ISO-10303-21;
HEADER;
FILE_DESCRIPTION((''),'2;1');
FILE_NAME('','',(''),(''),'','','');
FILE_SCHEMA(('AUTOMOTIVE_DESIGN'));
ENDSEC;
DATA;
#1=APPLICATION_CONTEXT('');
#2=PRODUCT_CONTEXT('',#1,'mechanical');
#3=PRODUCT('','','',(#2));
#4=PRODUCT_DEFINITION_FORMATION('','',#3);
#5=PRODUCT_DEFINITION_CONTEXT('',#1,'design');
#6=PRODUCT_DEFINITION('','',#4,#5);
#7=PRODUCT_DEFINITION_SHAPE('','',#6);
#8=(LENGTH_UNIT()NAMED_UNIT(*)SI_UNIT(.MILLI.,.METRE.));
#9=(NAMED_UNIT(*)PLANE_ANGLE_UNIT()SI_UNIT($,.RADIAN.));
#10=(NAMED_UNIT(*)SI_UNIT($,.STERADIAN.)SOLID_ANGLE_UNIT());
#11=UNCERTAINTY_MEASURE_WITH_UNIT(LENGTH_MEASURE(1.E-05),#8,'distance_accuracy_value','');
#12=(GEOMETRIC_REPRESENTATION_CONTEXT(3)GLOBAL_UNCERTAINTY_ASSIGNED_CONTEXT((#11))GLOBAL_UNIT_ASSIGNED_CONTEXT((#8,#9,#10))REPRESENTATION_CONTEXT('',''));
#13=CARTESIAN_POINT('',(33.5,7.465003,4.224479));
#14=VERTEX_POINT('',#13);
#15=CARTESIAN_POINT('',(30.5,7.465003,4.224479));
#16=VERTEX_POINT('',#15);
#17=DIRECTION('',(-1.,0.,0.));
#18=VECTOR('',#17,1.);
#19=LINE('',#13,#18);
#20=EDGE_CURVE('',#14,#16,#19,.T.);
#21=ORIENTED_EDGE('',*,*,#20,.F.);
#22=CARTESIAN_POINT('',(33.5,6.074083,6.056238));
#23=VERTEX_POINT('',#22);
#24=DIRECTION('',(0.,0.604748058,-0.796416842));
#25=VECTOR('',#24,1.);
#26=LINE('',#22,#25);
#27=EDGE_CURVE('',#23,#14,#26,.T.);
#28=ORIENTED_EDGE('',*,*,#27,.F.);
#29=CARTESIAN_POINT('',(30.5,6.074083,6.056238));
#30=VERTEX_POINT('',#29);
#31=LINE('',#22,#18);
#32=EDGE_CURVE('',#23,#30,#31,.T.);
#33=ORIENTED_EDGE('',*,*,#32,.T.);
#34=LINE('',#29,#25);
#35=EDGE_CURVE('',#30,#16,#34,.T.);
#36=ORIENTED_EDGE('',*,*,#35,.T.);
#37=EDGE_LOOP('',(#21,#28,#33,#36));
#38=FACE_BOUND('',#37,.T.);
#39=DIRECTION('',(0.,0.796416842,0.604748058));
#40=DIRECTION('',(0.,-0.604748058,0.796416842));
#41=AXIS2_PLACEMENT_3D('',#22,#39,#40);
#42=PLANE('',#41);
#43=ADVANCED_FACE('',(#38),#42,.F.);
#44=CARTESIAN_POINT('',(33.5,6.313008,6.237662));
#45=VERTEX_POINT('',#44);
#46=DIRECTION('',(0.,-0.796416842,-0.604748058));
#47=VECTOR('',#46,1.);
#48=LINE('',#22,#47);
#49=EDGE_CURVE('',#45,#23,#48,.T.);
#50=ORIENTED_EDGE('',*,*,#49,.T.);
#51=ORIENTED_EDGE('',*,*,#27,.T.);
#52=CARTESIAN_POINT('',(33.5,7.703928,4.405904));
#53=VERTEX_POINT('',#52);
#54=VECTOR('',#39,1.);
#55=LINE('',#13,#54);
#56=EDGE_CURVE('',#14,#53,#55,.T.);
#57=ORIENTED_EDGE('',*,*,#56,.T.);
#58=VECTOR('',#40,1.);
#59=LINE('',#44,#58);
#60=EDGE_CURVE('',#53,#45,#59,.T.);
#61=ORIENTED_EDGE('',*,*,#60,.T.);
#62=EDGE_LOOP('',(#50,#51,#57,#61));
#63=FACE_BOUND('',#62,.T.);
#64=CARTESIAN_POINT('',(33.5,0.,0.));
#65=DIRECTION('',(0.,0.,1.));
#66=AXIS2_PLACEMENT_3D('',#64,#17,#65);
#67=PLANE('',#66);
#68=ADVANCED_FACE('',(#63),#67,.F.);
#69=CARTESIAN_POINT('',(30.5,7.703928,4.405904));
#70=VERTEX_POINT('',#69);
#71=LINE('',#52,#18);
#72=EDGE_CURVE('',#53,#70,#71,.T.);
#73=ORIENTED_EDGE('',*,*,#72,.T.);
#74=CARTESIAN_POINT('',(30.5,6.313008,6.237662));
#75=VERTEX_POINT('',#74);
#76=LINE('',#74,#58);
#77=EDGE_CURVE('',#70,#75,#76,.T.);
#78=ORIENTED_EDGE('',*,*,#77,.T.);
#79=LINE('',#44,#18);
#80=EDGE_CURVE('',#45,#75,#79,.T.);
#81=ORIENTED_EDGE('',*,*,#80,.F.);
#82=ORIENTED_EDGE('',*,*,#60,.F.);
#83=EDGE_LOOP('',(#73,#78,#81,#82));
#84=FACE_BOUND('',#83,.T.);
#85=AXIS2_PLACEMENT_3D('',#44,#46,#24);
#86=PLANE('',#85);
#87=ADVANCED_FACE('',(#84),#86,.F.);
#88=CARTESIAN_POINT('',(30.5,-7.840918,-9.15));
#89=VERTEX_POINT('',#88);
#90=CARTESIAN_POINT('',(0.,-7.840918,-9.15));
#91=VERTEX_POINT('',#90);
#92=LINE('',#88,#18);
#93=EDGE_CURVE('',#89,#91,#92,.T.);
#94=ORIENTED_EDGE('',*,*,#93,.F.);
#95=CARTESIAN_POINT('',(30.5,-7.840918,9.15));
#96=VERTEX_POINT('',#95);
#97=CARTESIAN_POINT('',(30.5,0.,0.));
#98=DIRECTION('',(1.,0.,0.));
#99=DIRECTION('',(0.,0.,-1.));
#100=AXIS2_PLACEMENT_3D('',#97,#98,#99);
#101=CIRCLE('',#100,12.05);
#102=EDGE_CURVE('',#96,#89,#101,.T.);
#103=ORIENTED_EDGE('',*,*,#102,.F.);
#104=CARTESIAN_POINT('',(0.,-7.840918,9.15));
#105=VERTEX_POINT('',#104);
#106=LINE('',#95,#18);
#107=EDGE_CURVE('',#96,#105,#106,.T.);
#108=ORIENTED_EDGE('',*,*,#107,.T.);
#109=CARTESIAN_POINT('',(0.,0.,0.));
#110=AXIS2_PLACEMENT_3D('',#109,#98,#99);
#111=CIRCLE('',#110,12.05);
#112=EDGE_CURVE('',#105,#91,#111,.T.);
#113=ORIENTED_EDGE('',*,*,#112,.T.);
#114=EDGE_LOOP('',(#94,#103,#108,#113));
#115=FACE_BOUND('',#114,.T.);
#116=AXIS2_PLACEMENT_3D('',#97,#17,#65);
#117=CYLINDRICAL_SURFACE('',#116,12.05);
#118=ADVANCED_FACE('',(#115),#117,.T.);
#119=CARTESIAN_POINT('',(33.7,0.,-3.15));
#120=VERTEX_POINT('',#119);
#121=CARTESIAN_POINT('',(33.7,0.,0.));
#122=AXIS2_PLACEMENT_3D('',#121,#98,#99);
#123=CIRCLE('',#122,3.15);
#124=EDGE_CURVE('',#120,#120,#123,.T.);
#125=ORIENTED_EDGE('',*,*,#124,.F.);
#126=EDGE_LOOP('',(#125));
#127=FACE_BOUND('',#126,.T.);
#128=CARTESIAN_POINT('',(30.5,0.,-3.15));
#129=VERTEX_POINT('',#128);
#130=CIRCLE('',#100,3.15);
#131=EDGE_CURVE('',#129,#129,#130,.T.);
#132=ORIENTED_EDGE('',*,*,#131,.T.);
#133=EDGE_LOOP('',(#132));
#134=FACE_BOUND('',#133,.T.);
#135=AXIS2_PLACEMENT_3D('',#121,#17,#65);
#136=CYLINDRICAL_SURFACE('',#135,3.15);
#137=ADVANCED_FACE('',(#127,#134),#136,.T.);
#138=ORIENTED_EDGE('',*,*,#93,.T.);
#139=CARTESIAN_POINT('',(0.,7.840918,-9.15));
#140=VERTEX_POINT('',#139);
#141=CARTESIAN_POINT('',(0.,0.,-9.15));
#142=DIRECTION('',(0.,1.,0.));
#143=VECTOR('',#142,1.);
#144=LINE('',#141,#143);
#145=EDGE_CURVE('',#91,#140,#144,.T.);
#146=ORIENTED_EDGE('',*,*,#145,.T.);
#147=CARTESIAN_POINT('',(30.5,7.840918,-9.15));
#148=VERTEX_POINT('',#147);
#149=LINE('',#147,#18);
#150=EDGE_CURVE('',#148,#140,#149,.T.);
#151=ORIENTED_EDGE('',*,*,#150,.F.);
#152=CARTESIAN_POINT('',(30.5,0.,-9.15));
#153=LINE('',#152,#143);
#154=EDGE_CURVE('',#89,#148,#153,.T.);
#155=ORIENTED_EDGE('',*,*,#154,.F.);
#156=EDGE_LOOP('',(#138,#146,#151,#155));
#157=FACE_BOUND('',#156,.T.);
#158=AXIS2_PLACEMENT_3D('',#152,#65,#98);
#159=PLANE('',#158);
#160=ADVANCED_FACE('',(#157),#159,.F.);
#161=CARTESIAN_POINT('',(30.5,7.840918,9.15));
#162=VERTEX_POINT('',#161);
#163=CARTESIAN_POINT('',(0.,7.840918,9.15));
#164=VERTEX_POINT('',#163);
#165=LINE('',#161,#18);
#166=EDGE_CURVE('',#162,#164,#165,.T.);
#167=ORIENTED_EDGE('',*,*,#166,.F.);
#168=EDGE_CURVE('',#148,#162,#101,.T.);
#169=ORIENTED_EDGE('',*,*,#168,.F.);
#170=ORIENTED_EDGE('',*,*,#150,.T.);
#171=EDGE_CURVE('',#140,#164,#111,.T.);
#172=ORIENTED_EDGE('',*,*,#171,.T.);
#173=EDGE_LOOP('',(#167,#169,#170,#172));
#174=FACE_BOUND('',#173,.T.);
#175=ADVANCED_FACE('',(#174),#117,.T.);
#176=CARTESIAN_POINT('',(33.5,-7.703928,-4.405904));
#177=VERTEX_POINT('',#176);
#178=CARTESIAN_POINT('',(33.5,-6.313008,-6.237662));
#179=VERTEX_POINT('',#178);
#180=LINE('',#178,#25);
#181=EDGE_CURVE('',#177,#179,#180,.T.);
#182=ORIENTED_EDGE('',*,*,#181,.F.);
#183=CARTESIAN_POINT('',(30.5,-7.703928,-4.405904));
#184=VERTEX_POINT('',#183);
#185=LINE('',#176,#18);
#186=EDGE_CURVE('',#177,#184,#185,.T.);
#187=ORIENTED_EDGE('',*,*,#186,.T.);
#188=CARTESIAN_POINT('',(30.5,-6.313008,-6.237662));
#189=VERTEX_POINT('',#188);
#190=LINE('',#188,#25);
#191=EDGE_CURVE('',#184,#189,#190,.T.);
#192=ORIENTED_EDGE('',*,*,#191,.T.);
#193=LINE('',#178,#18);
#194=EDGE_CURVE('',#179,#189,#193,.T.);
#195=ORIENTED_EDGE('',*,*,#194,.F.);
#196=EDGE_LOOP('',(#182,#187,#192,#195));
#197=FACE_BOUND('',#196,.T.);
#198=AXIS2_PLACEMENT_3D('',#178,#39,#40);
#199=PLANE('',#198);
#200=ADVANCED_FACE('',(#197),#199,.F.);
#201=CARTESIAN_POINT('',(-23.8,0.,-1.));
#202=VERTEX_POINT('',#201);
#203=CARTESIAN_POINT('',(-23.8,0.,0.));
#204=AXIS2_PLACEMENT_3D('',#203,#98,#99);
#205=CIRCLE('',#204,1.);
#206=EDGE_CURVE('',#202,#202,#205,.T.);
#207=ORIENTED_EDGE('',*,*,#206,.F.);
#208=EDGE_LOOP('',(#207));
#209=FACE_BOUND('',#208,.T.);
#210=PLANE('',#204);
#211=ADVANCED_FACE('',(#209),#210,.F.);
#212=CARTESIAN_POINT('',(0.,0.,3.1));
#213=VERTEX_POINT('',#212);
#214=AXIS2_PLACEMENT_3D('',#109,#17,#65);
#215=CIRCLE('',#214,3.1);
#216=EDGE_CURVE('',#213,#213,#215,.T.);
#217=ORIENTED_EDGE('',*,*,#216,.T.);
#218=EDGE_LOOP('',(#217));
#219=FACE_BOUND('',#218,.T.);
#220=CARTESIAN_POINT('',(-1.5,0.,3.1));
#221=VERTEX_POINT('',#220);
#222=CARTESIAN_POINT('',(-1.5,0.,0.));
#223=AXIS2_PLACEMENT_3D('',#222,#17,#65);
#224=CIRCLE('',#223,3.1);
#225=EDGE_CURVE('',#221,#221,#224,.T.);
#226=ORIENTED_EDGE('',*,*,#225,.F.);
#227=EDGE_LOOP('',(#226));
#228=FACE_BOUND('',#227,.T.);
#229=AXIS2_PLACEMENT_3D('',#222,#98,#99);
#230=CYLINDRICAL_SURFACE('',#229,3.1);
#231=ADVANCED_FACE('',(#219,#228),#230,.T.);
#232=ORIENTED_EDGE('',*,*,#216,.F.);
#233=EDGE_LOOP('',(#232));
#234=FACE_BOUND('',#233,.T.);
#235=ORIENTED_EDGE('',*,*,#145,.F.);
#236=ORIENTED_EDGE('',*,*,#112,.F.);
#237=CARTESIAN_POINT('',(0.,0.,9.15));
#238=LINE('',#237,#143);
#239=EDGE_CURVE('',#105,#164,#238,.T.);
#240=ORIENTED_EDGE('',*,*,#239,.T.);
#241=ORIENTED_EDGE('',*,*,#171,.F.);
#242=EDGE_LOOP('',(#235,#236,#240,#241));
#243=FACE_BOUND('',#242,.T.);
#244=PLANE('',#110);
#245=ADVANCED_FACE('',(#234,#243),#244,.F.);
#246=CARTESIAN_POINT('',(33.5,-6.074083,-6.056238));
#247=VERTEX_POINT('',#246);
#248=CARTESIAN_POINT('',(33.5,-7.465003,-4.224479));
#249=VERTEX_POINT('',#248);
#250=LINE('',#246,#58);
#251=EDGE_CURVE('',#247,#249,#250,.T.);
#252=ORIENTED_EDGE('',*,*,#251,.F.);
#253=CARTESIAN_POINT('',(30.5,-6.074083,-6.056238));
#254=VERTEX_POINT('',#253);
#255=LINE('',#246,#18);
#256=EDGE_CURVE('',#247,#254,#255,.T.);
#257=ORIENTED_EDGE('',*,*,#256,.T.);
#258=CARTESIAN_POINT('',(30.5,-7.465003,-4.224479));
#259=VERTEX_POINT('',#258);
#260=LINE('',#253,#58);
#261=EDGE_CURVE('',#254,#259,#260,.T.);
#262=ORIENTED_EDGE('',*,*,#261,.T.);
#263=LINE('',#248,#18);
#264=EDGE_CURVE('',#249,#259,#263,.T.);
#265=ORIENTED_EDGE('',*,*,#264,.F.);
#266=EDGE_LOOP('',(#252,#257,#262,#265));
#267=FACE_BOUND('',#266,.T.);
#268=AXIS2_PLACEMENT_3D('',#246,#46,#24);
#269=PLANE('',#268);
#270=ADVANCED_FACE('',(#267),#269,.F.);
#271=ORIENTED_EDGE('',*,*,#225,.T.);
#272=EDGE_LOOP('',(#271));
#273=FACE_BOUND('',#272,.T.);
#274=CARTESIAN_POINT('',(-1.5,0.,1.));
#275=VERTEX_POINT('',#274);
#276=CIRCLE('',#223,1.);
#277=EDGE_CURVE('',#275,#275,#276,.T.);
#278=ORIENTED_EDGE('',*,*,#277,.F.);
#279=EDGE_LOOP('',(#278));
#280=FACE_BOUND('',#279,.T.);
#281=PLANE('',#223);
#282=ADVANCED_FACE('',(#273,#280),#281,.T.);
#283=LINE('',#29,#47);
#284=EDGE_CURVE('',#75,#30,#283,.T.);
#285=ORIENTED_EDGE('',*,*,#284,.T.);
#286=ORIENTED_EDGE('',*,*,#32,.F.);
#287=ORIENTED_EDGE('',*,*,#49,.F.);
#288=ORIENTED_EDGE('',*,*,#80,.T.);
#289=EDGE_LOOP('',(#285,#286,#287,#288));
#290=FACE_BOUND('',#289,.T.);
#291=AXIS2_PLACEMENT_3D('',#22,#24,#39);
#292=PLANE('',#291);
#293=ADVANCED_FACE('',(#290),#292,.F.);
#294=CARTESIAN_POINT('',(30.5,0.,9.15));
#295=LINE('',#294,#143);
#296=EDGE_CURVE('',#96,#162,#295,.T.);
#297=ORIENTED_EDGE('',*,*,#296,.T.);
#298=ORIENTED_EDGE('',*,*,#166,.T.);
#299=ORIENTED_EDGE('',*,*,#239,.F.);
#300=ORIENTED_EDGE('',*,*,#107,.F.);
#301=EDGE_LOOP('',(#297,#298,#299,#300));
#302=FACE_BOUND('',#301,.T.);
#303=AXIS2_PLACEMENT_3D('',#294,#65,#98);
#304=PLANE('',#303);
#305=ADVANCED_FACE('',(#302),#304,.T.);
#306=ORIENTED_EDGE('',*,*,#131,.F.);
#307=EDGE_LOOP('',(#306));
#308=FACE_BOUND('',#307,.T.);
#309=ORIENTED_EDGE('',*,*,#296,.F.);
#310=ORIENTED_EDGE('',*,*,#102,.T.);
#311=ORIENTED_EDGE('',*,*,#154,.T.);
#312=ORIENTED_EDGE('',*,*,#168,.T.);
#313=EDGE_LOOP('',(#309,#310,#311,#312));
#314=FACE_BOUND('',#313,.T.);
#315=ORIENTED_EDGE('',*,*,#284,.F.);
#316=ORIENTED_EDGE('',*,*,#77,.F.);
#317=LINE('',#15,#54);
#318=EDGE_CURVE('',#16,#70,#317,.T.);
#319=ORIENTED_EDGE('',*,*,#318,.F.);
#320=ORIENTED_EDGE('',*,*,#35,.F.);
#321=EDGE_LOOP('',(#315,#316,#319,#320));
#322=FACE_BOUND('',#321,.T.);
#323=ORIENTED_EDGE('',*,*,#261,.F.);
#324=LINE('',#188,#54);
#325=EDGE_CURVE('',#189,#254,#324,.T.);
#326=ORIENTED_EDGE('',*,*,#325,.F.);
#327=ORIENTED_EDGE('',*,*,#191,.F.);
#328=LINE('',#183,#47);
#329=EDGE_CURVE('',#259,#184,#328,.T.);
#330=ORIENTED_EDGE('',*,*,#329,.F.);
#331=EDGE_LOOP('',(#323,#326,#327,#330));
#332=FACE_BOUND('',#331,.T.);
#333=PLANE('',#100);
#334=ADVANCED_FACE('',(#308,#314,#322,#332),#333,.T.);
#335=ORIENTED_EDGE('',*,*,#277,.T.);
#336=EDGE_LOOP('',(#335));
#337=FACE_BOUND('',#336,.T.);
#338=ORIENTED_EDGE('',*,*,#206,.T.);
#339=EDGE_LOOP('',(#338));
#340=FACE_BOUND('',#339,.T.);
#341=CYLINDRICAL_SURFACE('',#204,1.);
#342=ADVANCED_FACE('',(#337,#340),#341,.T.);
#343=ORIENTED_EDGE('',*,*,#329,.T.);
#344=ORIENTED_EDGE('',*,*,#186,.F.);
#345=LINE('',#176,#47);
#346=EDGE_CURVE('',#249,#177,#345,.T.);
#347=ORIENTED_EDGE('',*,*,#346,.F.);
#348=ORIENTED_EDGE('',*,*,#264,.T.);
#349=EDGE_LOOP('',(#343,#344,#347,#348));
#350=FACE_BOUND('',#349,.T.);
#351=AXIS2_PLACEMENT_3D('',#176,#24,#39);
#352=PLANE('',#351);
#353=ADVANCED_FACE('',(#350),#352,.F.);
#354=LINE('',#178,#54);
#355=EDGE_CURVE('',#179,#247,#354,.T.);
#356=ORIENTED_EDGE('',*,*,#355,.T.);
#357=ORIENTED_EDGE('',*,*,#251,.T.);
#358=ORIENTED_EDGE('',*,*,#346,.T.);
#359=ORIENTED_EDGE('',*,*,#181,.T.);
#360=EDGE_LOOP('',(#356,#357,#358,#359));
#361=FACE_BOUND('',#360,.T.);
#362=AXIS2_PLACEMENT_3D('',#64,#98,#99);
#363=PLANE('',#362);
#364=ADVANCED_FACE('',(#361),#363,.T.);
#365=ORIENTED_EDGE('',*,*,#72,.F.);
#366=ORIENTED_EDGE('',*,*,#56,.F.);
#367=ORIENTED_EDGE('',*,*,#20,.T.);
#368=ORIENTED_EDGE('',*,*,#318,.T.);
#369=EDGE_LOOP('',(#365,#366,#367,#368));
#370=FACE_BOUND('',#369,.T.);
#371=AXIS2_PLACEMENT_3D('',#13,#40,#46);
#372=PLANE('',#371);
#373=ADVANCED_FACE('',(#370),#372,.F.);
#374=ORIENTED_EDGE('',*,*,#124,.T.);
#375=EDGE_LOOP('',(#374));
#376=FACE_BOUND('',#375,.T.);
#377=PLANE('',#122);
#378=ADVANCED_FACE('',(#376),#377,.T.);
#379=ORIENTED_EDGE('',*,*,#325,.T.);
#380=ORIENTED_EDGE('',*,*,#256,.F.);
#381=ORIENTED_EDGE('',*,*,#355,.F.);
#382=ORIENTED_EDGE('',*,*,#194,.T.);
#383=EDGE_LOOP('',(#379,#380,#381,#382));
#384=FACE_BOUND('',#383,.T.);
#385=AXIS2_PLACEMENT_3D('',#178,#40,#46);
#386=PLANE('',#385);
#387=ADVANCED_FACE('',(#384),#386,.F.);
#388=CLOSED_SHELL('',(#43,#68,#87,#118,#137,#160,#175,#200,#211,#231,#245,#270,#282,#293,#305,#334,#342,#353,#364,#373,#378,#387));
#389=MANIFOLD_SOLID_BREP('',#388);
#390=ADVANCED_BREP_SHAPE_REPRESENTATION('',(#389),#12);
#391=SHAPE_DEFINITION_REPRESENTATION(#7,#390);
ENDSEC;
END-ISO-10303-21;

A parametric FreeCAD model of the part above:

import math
import FreeCAD as App
import Part
import Sketcher
Q = App.Units.Quantity


def add_polygon(sketch, points):
    """Adds a closed chain of lines whose ends are joined by coincident constraints."""
    first, n = sketch.GeometryCount, len(points)
    for a, b in zip(points, points[1:] + points[:1]):
        sketch.addGeometry(Part.LineSegment(App.Vector(*a, 0), App.Vector(*b, 0)), False)
    for i in range(n):
        sketch.addConstraint(Sketcher.Constraint("Coincident", first + i, 2, first + (i + 1) % n, 1))

doc = App.newDocument("Part")
params = doc.addObject("Spreadsheet::Sheet", "Params")
for row, (alias, value) in enumerate([
    ("sketch1_radius", "12.05 mm"),
    ("pad1_length", "30.5 mm"),
    ("sketch2_diameter", "6.2 mm"),
    ("pad2_length", "1.5 mm"),
    ("sketch3_diameter", "2 mm"),
    ("pad3_length", "23.8 mm"),
    ("sketch4_diameter", "6.3 mm"),
    ("pad4_length", "3.2 mm"),
    ("sketch5_length", "2.3 mm"),
    ("sketch5_length2", "0.3 mm"),
    ("pad5_length", "3 mm"),
], start=1):
    params.set(f"A{row}", alias)
    params.set(f"B{row}", "=" + value)
    params.setAlias(f"B{row}", alias)

body = doc.addObject("PartDesign::Body", "Body")

sketch1 = body.newObject("Sketcher::SketchObject", "Sketch")
sketch1.AttachmentSupport = (doc.getObject("YZ_Plane"), [""])
sketch1.MapMode = "FlatFace"
sketch1.addGeometry(Part.ArcOfCircle(Part.Circle(App.Vector(0, 0, 0), App.Vector(0, 0, 1), 12), math.radians(131), math.radians(180)), False)
sketch1.addGeometry(Part.ArcOfCircle(Part.Circle(App.Vector(0, 0, 0), App.Vector(0, 0, 1), 12), math.radians(-180), math.radians(-131)), False)
sketch1.addGeometry(Part.LineSegment(App.Vector(-8, -9, 0), App.Vector(8, -9, 0)), False)
sketch1.addGeometry(Part.ArcOfCircle(Part.Circle(App.Vector(0, 0, 0), App.Vector(0, 0, 1), 12), math.radians(-49), math.radians(0)), False)
sketch1.addGeometry(Part.ArcOfCircle(Part.Circle(App.Vector(0, 0, 0), App.Vector(0, 0, 1), 12), math.radians(0), math.radians(49)), False)
sketch1.addGeometry(Part.LineSegment(App.Vector(8, 9, 0), App.Vector(-8, 9, 0)), False)
sketch1.addConstraint(Sketcher.Constraint("Tangent", 0, 2, 1, 1))
sketch1.addConstraint(Sketcher.Constraint("Coincident", 1, 2, 2, 1))
sketch1.addConstraint(Sketcher.Constraint("Coincident", 2, 2, 3, 1))
sketch1.addConstraint(Sketcher.Constraint("Tangent", 3, 2, 4, 1))
sketch1.addConstraint(Sketcher.Constraint("Coincident", 4, 2, 5, 1))
sketch1.addConstraint(Sketcher.Constraint("Coincident", 5, 2, 0, 1))
sketch1.addConstraint(Sketcher.Constraint("Horizontal", 2))
sketch1.addConstraint(Sketcher.Constraint("Horizontal", 5))
sketch1.addConstraint(Sketcher.Constraint("Coincident", 0, 3, -1, 1))
sketch1.addConstraint(Sketcher.Constraint("Coincident", 3, 3, -1, 1))
sketch1.addConstraint(Sketcher.Constraint("Equal", 0, 1))
sketch1.addConstraint(Sketcher.Constraint("Equal", 1, 3))
sketch1.addConstraint(Sketcher.Constraint("Equal", 3, 4))
sketch1.addConstraint(Sketcher.Constraint("PointOnObject", 0, 2, -1))
sketch1.addConstraint(Sketcher.Constraint("PointOnObject", 3, 2, -1))
sketch1.addConstraint(Sketcher.Constraint("Vertical", 2, 2, 4, 2))
sketch1.addConstraint(Sketcher.Constraint("Radius", 0, Q("12.05 mm")))
sketch1.addConstraint(Sketcher.Constraint("DistanceY", 1, 2, -1, 1, Q("9.15 mm")))
sketch1.setExpression("Constraints[16]", "Params.sketch1_radius")
pad1 = body.newObject("PartDesign::Pad", "Pad")
pad1.Profile = sketch1
pad1.setExpression("Length", "Params.pad1_length")

sketch2 = body.newObject("Sketcher::SketchObject", "Sketch001")
sketch2.AttachmentSupport = (doc.getObject("YZ_Plane"), [""])
sketch2.MapMode = "FlatFace"
sketch2.addGeometry(Part.Circle(App.Vector(0, 0, 0), App.Vector(0, 0, 1), 3.1), False)
sketch2.addConstraint(Sketcher.Constraint("Coincident", 0, 3, -1, 1))
sketch2.addConstraint(Sketcher.Constraint("Diameter", 0, Q("6.2 mm")))
sketch2.setExpression("Constraints[1]", "Params.sketch2_diameter")
pad2 = body.newObject("PartDesign::Pad", "Pad001")
pad2.Profile = sketch2
pad2.setExpression("Length", "Params.pad2_length")
pad2.Reversed = True

sketch3 = body.newObject("Sketcher::SketchObject", "Sketch002")
sketch3.AttachmentSupport = (doc.getObject("YZ_Plane"), [""])
sketch3.MapMode = "FlatFace"
sketch3.addGeometry(Part.Circle(App.Vector(0, 0, 0), App.Vector(0, 0, 1), 1), False)
sketch3.addConstraint(Sketcher.Constraint("Coincident", 0, 3, -1, 1))
sketch3.addConstraint(Sketcher.Constraint("Diameter", 0, Q("2 mm")))
sketch3.setExpression("Constraints[1]", "Params.sketch3_diameter")
pad3 = body.newObject("PartDesign::Pad", "Pad002")
pad3.Profile = sketch3
pad3.setExpression("Length", "Params.pad3_length")
pad3.Reversed = True

sketch4 = body.newObject("Sketcher::SketchObject", "Sketch003")
sketch4.AttachmentSupport = (doc.getObject("YZ_Plane"), [""])
sketch4.MapMode = "FlatFace"
sketch4.AttachmentOffset = App.Placement(App.Vector(0, 0, 30.5), App.Rotation())
sketch4.addGeometry(Part.Circle(App.Vector(0, 0, 0), App.Vector(0, 0, 1), 3.1), False)
sketch4.addConstraint(Sketcher.Constraint("Coincident", 0, 3, -1, 1))
sketch4.addConstraint(Sketcher.Constraint("Diameter", 0, Q("6.3 mm")))
sketch4.setExpression("Constraints[1]", "Params.sketch4_diameter")
pad4 = body.newObject("PartDesign::Pad", "Pad003")
pad4.Profile = sketch4
pad4.setExpression("Length", "Params.pad4_length")

sketch5 = body.newObject("Sketcher::SketchObject", "Sketch004")
sketch5.AttachmentSupport = (doc.getObject("YZ_Plane"), [""])
sketch5.MapMode = "FlatFace"
sketch5.AttachmentOffset = App.Placement(App.Vector(0, 0, 30.5), App.Rotation())
add_polygon(sketch5, [(6.07, 6.06), (7.47, 4.22), (7.7, 4.41), (6.31, 6.24)])
add_polygon(sketch5, [(-7.7, -4.41), (-6.31, -6.24), (-6.07, -6.06), (-7.47, -4.22)])
sketch5.addConstraint(Sketcher.Constraint("Symmetric", 2, 2, 4, 2, -1, 1))
sketch5.addConstraint(Sketcher.Constraint("Symmetric", 3, 2, 5, 2, -1, 1))
sketch5.addConstraint(Sketcher.Constraint("Symmetric", 0, 2, 6, 2, -1, 1))
sketch5.addConstraint(Sketcher.Constraint("Symmetric", 1, 2, 7, 2, -1, 1))
sketch5.addConstraint(Sketcher.Constraint("Perpendicular", 0, 1))
sketch5.addConstraint(Sketcher.Constraint("Perpendicular", 1, 2))
sketch5.addConstraint(Sketcher.Constraint("Perpendicular", 2, 3))
sketch5.addConstraint(Sketcher.Constraint("Distance", 0, Q("2.3 mm")))
sketch5.addConstraint(Sketcher.Constraint("Distance", 1, Q("0.3 mm")))
sketch5.addConstraint(Sketcher.Constraint("DistanceY", 4, 2, 3, 2, Q("12.2939 mm")))
sketch5.addConstraint(Sketcher.Constraint("DistanceY", -1, 1, 0, 2, Q("4.224479 mm")))
sketch5.addConstraint(Sketcher.Constraint("DistanceX", -1, 1, 1, 2, Q("7.703928 mm")))
sketch5.setExpression("Constraints[15]", "Params.sketch5_length")
sketch5.setExpression("Constraints[16]", "Params.sketch5_length2")
pad5 = body.newObject("PartDesign::Pad", "Pad004")
pad5.Profile = sketch5
pad5.setExpression("Length", "Params.pad5_length")

doc.recompute()
